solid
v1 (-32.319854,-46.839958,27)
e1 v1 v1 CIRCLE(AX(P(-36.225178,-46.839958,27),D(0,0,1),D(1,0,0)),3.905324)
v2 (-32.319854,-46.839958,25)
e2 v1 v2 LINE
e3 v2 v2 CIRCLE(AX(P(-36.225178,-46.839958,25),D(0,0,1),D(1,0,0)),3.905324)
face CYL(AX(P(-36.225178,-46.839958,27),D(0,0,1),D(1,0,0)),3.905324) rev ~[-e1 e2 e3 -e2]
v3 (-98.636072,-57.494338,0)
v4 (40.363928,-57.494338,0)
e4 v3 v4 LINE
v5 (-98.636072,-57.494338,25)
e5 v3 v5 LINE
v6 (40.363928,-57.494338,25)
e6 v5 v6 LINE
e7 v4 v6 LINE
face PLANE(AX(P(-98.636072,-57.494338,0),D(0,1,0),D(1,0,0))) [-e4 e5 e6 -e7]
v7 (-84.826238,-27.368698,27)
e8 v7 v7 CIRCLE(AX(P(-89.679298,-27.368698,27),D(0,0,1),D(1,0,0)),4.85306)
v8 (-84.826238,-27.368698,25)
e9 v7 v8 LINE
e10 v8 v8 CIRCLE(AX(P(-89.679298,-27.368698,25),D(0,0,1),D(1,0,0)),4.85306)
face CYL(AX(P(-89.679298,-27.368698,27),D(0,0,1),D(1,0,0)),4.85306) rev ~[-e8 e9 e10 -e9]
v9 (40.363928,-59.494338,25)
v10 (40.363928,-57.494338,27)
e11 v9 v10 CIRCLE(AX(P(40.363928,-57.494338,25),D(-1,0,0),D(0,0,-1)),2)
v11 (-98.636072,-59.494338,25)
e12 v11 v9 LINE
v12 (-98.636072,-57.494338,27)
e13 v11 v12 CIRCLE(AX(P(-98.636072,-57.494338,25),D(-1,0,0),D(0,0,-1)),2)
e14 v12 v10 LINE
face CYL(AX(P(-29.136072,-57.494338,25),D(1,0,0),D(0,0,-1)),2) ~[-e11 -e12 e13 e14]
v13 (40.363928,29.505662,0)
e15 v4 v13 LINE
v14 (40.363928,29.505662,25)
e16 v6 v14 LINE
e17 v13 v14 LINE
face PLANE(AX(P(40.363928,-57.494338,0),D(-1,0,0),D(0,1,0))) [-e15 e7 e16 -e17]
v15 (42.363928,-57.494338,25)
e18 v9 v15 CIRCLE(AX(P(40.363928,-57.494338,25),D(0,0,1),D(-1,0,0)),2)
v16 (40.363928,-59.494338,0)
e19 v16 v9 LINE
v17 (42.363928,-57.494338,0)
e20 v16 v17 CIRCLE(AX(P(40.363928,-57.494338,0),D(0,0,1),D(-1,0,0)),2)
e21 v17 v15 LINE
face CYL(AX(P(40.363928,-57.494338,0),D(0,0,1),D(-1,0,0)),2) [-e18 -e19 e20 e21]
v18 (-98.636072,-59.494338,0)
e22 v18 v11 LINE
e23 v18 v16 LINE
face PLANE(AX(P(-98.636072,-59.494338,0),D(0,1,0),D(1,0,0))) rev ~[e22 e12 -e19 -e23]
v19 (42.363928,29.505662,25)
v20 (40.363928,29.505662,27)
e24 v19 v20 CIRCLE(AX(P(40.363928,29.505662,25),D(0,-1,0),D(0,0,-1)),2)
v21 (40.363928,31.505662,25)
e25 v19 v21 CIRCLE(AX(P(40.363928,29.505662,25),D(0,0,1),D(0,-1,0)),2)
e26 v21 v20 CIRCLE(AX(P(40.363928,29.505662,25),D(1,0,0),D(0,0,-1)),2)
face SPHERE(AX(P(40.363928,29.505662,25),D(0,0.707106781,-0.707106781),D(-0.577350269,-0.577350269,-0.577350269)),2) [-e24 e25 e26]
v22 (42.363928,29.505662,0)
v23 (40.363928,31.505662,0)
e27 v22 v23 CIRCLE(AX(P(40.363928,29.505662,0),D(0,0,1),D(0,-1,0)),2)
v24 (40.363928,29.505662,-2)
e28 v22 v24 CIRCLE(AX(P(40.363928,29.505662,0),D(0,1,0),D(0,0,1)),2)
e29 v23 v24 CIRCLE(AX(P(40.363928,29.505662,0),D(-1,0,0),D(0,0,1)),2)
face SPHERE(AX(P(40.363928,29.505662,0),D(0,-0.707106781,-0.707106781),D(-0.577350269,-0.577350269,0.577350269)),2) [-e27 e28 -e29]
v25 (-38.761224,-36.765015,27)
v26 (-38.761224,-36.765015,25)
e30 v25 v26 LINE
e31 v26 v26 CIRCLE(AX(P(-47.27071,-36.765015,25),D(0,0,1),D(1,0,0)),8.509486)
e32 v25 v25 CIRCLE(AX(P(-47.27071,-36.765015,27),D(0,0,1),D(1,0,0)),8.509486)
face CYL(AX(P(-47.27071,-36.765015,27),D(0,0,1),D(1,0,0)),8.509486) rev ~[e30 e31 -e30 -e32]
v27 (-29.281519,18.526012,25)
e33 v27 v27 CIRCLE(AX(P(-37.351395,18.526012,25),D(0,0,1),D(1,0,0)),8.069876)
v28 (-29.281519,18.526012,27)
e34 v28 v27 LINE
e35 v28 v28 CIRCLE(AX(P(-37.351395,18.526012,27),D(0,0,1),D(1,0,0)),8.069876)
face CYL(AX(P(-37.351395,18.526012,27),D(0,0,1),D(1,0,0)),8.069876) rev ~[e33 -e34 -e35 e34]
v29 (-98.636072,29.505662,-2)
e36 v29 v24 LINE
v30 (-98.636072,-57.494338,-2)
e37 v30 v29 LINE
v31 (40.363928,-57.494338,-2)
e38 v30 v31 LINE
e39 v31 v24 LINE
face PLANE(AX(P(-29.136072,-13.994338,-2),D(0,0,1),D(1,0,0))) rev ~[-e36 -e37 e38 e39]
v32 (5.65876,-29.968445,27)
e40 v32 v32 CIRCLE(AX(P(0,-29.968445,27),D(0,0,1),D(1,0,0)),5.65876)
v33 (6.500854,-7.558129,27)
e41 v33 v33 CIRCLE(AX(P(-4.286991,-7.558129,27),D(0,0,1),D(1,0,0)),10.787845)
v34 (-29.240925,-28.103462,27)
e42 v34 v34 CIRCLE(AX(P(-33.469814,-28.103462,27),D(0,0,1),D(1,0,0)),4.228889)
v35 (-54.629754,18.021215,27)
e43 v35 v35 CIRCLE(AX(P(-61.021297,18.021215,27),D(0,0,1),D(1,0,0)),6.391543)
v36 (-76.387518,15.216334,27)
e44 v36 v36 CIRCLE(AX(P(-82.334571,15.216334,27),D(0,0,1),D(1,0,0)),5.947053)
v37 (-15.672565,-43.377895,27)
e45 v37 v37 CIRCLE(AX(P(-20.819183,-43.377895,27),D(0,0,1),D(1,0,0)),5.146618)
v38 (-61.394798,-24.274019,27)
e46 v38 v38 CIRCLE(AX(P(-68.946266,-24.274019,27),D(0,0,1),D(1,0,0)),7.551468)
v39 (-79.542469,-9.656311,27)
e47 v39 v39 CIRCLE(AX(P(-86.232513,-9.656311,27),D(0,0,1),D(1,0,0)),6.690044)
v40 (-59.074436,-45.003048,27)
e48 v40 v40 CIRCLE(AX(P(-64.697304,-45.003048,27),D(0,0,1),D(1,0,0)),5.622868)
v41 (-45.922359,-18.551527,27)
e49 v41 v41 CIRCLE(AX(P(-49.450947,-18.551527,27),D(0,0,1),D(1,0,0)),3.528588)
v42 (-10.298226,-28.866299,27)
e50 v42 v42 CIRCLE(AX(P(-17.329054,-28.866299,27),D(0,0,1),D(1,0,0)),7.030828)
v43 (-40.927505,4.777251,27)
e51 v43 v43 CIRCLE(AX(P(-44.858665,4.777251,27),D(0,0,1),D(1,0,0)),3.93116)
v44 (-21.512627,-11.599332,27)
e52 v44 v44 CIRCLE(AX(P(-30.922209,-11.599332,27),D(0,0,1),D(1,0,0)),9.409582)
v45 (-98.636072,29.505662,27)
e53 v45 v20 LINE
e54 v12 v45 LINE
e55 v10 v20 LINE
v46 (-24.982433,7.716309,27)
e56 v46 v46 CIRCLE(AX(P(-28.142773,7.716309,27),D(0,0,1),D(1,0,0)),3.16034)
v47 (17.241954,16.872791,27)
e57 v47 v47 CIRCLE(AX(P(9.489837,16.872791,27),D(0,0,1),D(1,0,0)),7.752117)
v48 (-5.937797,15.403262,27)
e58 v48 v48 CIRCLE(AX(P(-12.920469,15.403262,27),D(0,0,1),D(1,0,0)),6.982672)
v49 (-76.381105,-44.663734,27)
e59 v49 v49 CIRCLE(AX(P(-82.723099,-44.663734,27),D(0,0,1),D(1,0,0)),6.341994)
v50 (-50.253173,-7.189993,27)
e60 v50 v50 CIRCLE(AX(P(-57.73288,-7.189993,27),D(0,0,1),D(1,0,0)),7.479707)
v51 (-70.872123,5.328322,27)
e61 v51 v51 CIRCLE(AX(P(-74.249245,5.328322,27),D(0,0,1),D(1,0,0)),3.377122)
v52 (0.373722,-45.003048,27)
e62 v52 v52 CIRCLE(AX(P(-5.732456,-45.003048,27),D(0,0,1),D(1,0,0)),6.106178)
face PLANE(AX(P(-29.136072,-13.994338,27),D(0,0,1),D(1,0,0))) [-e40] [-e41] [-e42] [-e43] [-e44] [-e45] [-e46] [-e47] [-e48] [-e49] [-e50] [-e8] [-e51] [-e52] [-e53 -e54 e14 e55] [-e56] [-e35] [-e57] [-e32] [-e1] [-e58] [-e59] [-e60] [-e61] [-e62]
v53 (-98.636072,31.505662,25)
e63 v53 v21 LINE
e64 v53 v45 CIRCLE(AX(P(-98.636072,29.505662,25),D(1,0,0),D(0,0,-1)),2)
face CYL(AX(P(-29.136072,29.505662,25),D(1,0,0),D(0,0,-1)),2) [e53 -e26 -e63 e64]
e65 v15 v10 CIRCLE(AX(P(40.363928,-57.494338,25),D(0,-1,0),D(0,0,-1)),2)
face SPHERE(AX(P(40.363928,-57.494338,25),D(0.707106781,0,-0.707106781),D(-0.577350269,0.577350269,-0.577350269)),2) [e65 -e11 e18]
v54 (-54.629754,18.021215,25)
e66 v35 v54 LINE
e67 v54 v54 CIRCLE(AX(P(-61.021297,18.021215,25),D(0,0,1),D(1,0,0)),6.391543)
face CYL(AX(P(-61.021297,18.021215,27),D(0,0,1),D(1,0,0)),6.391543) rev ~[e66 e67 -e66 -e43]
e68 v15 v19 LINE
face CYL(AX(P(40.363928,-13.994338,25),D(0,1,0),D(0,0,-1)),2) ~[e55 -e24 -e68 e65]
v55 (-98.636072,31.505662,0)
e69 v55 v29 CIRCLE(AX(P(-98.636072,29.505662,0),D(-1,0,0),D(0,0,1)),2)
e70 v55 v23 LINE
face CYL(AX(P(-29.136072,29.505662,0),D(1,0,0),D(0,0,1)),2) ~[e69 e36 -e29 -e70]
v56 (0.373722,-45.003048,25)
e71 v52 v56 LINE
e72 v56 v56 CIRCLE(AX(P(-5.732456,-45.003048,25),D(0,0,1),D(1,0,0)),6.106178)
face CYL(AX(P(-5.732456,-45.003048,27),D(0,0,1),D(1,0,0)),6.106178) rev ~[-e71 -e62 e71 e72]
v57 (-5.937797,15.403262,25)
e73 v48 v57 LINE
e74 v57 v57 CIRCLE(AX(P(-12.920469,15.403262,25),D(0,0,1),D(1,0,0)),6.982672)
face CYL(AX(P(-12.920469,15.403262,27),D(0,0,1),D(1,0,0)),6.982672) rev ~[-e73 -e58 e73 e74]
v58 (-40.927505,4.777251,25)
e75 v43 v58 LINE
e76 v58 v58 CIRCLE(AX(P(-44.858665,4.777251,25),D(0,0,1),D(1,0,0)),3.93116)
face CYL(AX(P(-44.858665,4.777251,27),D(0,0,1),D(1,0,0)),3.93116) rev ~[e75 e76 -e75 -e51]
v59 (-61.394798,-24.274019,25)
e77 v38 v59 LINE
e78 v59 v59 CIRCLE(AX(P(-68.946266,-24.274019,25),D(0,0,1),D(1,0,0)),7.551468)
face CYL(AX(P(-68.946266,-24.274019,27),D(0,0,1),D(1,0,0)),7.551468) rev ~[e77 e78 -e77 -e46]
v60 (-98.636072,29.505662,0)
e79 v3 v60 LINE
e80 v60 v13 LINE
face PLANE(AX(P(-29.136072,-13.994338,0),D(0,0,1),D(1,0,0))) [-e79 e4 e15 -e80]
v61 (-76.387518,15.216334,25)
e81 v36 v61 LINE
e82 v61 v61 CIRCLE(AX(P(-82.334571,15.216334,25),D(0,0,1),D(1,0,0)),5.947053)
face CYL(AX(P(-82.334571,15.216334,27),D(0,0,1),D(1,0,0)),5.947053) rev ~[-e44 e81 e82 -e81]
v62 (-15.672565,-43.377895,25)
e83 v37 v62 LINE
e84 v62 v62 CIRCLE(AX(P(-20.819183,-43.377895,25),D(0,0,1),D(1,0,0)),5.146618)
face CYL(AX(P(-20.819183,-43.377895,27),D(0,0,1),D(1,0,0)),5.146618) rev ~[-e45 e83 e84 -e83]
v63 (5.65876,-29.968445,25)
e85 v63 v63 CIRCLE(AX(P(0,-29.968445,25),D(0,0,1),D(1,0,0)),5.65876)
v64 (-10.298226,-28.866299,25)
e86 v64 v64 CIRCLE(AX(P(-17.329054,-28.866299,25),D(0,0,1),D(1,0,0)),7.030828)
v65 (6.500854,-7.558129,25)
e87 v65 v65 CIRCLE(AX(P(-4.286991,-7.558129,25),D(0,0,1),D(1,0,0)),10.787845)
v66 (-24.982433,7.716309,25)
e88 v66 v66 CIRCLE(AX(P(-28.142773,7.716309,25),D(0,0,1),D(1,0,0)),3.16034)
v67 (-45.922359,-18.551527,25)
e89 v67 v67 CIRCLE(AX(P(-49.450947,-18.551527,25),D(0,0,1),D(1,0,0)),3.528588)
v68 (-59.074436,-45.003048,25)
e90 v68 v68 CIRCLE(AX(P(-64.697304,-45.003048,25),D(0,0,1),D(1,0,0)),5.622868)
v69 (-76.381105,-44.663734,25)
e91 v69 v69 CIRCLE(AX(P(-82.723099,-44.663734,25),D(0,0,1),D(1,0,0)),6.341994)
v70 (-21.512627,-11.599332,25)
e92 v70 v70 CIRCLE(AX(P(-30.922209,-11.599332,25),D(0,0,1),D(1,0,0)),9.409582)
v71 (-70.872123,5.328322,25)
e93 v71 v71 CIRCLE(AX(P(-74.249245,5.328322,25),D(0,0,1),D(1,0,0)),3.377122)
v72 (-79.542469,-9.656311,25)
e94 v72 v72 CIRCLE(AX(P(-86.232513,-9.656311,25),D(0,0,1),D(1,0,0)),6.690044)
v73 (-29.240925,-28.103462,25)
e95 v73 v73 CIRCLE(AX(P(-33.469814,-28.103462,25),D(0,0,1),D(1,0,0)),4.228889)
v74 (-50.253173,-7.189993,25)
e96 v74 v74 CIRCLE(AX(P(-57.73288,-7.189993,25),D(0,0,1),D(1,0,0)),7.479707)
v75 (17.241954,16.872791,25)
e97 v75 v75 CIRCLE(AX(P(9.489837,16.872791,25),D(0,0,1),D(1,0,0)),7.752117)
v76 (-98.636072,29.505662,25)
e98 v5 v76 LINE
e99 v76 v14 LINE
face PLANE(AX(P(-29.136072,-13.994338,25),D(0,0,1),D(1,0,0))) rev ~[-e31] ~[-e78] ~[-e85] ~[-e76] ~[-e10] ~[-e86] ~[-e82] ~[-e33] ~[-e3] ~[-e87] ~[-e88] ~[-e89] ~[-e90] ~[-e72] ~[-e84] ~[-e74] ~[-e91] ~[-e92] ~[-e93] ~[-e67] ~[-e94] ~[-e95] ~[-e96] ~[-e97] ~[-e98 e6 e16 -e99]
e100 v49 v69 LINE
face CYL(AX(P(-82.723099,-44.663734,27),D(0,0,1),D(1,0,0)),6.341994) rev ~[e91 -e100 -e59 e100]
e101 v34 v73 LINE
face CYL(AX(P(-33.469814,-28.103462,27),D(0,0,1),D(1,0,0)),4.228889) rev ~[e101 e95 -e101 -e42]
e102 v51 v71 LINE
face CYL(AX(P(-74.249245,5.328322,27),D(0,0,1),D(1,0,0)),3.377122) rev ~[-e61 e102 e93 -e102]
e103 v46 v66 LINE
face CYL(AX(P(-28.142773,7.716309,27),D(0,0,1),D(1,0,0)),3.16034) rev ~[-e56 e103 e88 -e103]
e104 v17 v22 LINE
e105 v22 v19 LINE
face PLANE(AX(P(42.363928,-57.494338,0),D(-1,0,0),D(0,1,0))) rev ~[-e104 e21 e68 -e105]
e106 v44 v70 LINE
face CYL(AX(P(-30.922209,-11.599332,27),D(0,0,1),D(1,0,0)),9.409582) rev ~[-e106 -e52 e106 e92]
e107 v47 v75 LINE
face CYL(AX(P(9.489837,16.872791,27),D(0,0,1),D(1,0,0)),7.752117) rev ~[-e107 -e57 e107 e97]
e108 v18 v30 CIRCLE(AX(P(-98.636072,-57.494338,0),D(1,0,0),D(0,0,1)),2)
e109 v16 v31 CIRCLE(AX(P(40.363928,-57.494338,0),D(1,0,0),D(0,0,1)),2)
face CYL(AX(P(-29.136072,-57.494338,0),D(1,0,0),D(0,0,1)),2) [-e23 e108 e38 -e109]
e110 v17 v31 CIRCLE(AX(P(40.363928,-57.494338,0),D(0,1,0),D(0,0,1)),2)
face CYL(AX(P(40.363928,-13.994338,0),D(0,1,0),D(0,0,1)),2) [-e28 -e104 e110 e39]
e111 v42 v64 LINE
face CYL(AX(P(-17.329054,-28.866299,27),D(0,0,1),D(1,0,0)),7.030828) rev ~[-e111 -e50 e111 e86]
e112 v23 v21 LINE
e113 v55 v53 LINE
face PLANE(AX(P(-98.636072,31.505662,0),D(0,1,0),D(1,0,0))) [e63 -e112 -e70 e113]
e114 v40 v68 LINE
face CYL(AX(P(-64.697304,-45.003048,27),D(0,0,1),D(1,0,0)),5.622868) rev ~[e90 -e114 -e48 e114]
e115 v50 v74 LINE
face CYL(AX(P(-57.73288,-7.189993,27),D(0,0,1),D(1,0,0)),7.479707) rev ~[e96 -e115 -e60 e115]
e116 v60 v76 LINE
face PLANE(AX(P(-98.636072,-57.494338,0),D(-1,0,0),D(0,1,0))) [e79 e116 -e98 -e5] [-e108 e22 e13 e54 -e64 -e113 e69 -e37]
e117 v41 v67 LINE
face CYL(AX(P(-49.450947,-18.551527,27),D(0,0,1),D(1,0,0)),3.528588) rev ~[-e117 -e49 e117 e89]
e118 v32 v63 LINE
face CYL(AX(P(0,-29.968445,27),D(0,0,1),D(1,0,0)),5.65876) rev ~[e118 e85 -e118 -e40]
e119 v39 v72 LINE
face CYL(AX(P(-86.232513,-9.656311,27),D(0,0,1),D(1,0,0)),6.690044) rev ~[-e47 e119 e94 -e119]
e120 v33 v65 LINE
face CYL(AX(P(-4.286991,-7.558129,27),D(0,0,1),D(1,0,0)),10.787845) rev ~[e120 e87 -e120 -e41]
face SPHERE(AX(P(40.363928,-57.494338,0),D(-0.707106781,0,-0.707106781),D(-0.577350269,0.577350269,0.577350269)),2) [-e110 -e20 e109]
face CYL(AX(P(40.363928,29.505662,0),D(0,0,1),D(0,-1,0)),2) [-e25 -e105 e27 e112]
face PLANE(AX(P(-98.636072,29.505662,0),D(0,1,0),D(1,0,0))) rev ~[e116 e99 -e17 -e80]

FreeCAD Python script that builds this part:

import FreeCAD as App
import Part
import Sketcher
from FreeCAD import Vector
Q = App.Units.Quantity


def faces_at(feature, points):
    """Names of the faces that lie closest to the given points."""
    faces = feature.Shape.Faces
    near = lambda p: min(range(len(faces)), key=lambda i: faces[i].distToShape(Part.Vertex(*p))[0])
    return sorted({f"Face{near(p) + 1}" for p in points})


def add_polygon(sketch, points):
    """Adds a closed chain of lines whose ends are joined by coincident constraints."""
    first, n = sketch.GeometryCount, len(points)
    for a, b in zip(points, points[1:] + points[:1]):
        sketch.addGeometry(Part.LineSegment(App.Vector(*a, 0), App.Vector(*b, 0)), False)
    for i in range(n):
        sketch.addConstraint(Sketcher.Constraint("Coincident", first + i, 2, first + (i + 1) % n, 1))

doc = App.newDocument("Part")
body = doc.addObject("PartDesign::Body", "Body")

# Sketch on XY plane
sketch1 = doc.addObject("Sketcher::SketchObject", "Sketch")
body.addObject(sketch1)
sketch1.AttachmentSupport = (doc.XY_Plane, [""])
sketch1.MapMode = "FlatFace"
add_polygon(sketch1, [(-98.636072, 29.505662), (-98.636072, -57.494338), (40.363928, -57.494338), (40.363928, 29.505662)])  # lines 0-3
sketch1.addConstraint([
    Sketcher.Constraint("Vertical", 0),
    Sketcher.Constraint("Horizontal", 1),
    Sketcher.Constraint("Vertical", 2),
    Sketcher.Constraint("Horizontal", 3),
    Sketcher.Constraint("DistanceX", 1, 1, 1, 2, Q("139 mm")),
    Sketcher.Constraint("DistanceY", 0, 2, 0, 1, Q("87 mm")),
    Sketcher.Constraint("DistanceX", 0, 2, -1, 1, Q("98.636072 mm")),
    Sketcher.Constraint("DistanceY", 0, 2, -1, 1, Q("57.494338 mm")),
])
pad1 = doc.addObject("PartDesign::Pad", "Pad")
body.addObject(pad1)
pad1.Profile = sketch1
pad1.Length = 25
doc.recompute()

thickness = doc.addObject("PartDesign::Thickness", "Thickness")
body.addObject(thickness)
thickness.Base = (pad1, faces_at(pad1, [(-98.636, -13.994, 12.5)]))
thickness.Value = 2
thickness.Reversed = False
thickness.Join = "Arc"

# Sketch on XY plane
sketch2 = doc.addObject("Sketcher::SketchObject", "Sketch001")
body.addObject(sketch2)
sketch2.AttachmentSupport = (doc.XY_Plane, [""])
sketch2.MapMode = "FlatFace"
sketch2.AttachmentOffset = App.Placement(Vector(0, 0, 27), App.Rotation())
sketch2.addGeometry([
    Part.Circle(Vector(-82.334571, 15.216334, 0), Vector(0, 0, 1), 5.947053),  # 0
    Part.Circle(Vector(-61.021297, 18.021215, 0), Vector(0, 0, 1), 6.391543),  # 1
    Part.Circle(Vector(-57.73288, -7.189993, 0), Vector(0, 0, 1), 7.479707),  # 2
    Part.Circle(Vector(-86.232513, -9.656311, 0), Vector(0, 0, 1), 6.690044),  # 3
    Part.Circle(Vector(-68.946266, -24.274019, 0), Vector(0, 0, 1), 7.551468),  # 4
    Part.Circle(Vector(-82.723099, -44.663734, 0), Vector(0, 0, 1), 6.341994),  # 5
    Part.Circle(Vector(-47.27071, -36.765015, 0), Vector(0, 0, 1), 8.509486),  # 6
    Part.Circle(Vector(-30.922209, -11.599332, 0), Vector(0, 0, 1), 9.409582),  # 7
    Part.Circle(Vector(-37.351395, 18.526012, 0), Vector(0, 0, 1), 8.069876),  # 8
    Part.Circle(Vector(-17.329054, -28.866299, 0), Vector(0, 0, 1), 7.030828),  # 9
    Part.Circle(Vector(-20.819183, -43.377895, 0), Vector(0, 0, 1), 5.146618),  # 10
    Part.Circle(Vector(-12.920469, 15.403262, 0), Vector(0, 0, 1), 6.982672),  # 11
    Part.Circle(Vector(9.489837, 16.872791, 0), Vector(0, 0, 1), 7.752117),  # 12
    Part.Circle(Vector(-4.286991, -7.558129, 0), Vector(0, 0, 1), 10.787845),  # 13
    Part.Circle(Vector(0, -29.968445, 0), Vector(0, 0, 1), 5.65876),  # 14
    Part.Circle(Vector(-44.858665, 4.777251, 0), Vector(0, 0, 1), 3.93116),  # 15
    Part.Circle(Vector(-74.249245, 5.328322, 0), Vector(0, 0, 1), 3.377122),  # 16
    Part.Circle(Vector(-64.697304, -45.003048, 0), Vector(0, 0, 1), 5.622868),  # 17
    Part.Circle(Vector(-36.225178, -46.839958, 0), Vector(0, 0, 1), 3.905324),  # 18
    Part.Circle(Vector(-33.469814, -28.103462, 0), Vector(0, 0, 1), 4.228889),  # 19
    Part.Circle(Vector(-49.450947, -18.551527, 0), Vector(0, 0, 1), 3.528588),  # 20
    Part.Circle(Vector(-28.142773, 7.716309, 0), Vector(0, 0, 1), 3.16034),  # 21
    Part.Circle(Vector(-5.732456, -45.003048, 0), Vector(0, 0, 1), 6.106178),  # 22
    Part.Circle(Vector(-89.679298, -27.368698, 0), Vector(0, 0, 1), 4.85306),  # 23
], False)
sketch2.addConstraint([
    Sketcher.Constraint("PointOnObject", 14, 3, -2),
    Sketcher.Constraint("Horizontal", 17, 3, 22, 3),
    Sketcher.Constraint("Diameter", 3, Q("13.380088 mm")),
    Sketcher.Constraint("Diameter", 13, Q("21.57569 mm")),
    Sketcher.Constraint("Diameter", 14, Q("11.31752 mm")),
    Sketcher.Constraint("Diameter", 15, Q("7.86232 mm")),
    Sketcher.Constraint("Diameter", 21, Q("6.32068 mm")),
    Sketcher.Constraint("Diameter", 23, Q("9.70612 mm")),
    Sketcher.Constraint("Diameter", 0, Q("11.894106 mm")),
    Sketcher.Constraint("Diameter", 1, Q("12.783086 mm")),
    Sketcher.Constraint("Diameter", 2, Q("14.959414 mm")),
    Sketcher.Constraint("Diameter", 4, Q("15.102936 mm")),
    Sketcher.Constraint("Diameter", 5, Q("12.683988 mm")),
    Sketcher.Constraint("Diameter", 6, Q("17.018972 mm")),
    Sketcher.Constraint("Diameter", 7, Q("18.819164 mm")),
    Sketcher.Constraint("Diameter", 8, Q("16.139752 mm")),
    Sketcher.Constraint("Diameter", 9, Q("14.061656 mm")),
    Sketcher.Constraint("Diameter", 10, Q("10.293236 mm")),
    Sketcher.Constraint("Diameter", 11, Q("13.965344 mm")),
    Sketcher.Constraint("Diameter", 12, Q("15.504234 mm")),
    Sketcher.Constraint("Diameter", 16, Q("6.754244 mm")),
    Sketcher.Constraint("Diameter", 17, Q("11.245736 mm")),
    Sketcher.Constraint("Diameter", 18, Q("7.810648 mm")),
    Sketcher.Constraint("Diameter", 19, Q("8.457778 mm")),
    Sketcher.Constraint("Diameter", 20, Q("7.057176 mm")),
    Sketcher.Constraint("Diameter", 22, Q("12.212356 mm")),
    Sketcher.Constraint("DistanceX", 5, 3, -1, 1, Q("82.723099 mm")),
    Sketcher.Constraint("DistanceY", 9, 3, -1, 1, Q("28.866299 mm")),
    Sketcher.Constraint("DistanceX", 23, 3, -1, 1, Q("89.679298 mm")),
    Sketcher.Constraint("DistanceX", 6, 3, 7, 3, Q("16.348501 mm")),
    Sketcher.Constraint("DistanceX", 0, 3, -1, 1, Q("82.334571 mm")),
    Sketcher.Constraint("DistanceX", 2, 3, -1, 1, Q("57.73288 mm")),
    Sketcher.Constraint("DistanceY", 3, 3, -1, 1, Q("9.656311 mm")),
    Sketcher.Constraint("DistanceY", 4, 3, -1, 1, Q("24.274019 mm")),
    Sketcher.Constraint("DistanceX", 6, 3, -1, 1, Q("47.27071 mm")),
    Sketcher.Constraint("DistanceX", 11, 3, -1, 1, Q("12.920469 mm")),
    Sketcher.Constraint("DistanceY", -1, 1, 12, 3, Q("16.872791 mm")),
    Sketcher.Constraint("DistanceX", 13, 3, -1, 1, Q("4.286991 mm")),
    Sketcher.Constraint("DistanceY", 13, 3, -1, 1, Q("7.558129 mm")),
    Sketcher.Constraint("DistanceY", -1, 1, 15, 3, Q("4.777251 mm")),
    Sketcher.Constraint("DistanceY", 18, 3, -1, 1, Q("46.839958 mm")),
    Sketcher.Constraint("DistanceY", -1, 1, 21, 3, Q("7.716309 mm")),
    Sketcher.Constraint("DistanceY", 0, 3, 1, 3, Q("2.804881 mm")),
    Sketcher.Constraint("DistanceY", 2, 3, 1, 3, Q("25.211208 mm")),
    Sketcher.Constraint("DistanceY", 3, 3, 2, 3, Q("2.466318 mm")),
    Sketcher.Constraint("DistanceX", 4, 3, 1, 3, Q("7.924969 mm")),
    Sketcher.Constraint("DistanceY", 5, 3, 2, 3, Q("37.473741 mm")),
    Sketcher.Constraint("DistanceY", 6, 3, 2, 3, Q("29.575022 mm")),
    Sketcher.Constraint("DistanceY", 7, 3, 2, 3, Q("4.409339 mm")),
    Sketcher.Constraint("DistanceY", 0, 3, 8, 3, Q("3.309678 mm")),
    Sketcher.Constraint("DistanceX", 4, 3, 8, 3, Q("31.594871 mm")),
    Sketcher.Constraint("DistanceX", 8, 3, 9, 3, Q("20.022341 mm")),
    Sketcher.Constraint("DistanceX", 10, 3, 9, 3, Q("3.490129 mm")),
    Sketcher.Constraint("DistanceY", 10, 3, 6, 3, Q("6.61288 mm")),
    Sketcher.Constraint("DistanceY", 11, 3, 8, 3, Q("3.12275 mm")),
    Sketcher.Constraint("DistanceX", 8, 3, 12, 3, Q("46.841232 mm")),
    Sketcher.Constraint("DistanceX", 10, 3, 13, 3, Q("16.532192 mm")),
    Sketcher.Constraint("DistanceY", 10, 3, 14, 3, Q("13.40945 mm")),
    Sketcher.Constraint("DistanceX", 15, 3, 8, 3, Q("7.50727 mm")),
    Sketcher.Constraint("DistanceX", 16, 3, 1, 3, Q("13.227948 mm")),
    Sketcher.Constraint("DistanceY", 15, 3, 16, 3, Q("0.551071 mm")),
    Sketcher.Constraint("DistanceX", 4, 3, 17, 3, Q("4.248962 mm")),
    Sketcher.Constraint("DistanceY", 17, 3, 4, 3, Q("20.729029 mm")),
    Sketcher.Constraint("DistanceX", 3, 3, 17, 3, Q("21.535209 mm")),
    Sketcher.Constraint("DistanceX", 18, 3, 7, 3, Q("5.302969 mm")),
    Sketcher.Constraint("DistanceX", 19, 3, 9, 3, Q("16.14076 mm")),
    Sketcher.Constraint("DistanceY", 19, 3, 7, 3, Q("16.50413 mm")),
    Sketcher.Constraint("DistanceX", 20, 3, 7, 3, Q("18.528738 mm")),
    Sketcher.Constraint("DistanceY", 4, 3, 20, 3, Q("5.722492 mm")),
    Sketcher.Constraint("DistanceX", 8, 3, 21, 3, Q("9.208622 mm")),
    Sketcher.Constraint("DistanceX", 19, 3, 22, 3, Q("27.737358 mm")),
    Sketcher.Constraint("DistanceY", 23, 3, 4, 3, Q("3.094679 mm")),
])
pocket1 = doc.addObject("PartDesign::Pocket", "Pocket")
body.addObject(pocket1)
pocket1.Profile = sketch2
pocket1.Length = 5

doc.recompute()
